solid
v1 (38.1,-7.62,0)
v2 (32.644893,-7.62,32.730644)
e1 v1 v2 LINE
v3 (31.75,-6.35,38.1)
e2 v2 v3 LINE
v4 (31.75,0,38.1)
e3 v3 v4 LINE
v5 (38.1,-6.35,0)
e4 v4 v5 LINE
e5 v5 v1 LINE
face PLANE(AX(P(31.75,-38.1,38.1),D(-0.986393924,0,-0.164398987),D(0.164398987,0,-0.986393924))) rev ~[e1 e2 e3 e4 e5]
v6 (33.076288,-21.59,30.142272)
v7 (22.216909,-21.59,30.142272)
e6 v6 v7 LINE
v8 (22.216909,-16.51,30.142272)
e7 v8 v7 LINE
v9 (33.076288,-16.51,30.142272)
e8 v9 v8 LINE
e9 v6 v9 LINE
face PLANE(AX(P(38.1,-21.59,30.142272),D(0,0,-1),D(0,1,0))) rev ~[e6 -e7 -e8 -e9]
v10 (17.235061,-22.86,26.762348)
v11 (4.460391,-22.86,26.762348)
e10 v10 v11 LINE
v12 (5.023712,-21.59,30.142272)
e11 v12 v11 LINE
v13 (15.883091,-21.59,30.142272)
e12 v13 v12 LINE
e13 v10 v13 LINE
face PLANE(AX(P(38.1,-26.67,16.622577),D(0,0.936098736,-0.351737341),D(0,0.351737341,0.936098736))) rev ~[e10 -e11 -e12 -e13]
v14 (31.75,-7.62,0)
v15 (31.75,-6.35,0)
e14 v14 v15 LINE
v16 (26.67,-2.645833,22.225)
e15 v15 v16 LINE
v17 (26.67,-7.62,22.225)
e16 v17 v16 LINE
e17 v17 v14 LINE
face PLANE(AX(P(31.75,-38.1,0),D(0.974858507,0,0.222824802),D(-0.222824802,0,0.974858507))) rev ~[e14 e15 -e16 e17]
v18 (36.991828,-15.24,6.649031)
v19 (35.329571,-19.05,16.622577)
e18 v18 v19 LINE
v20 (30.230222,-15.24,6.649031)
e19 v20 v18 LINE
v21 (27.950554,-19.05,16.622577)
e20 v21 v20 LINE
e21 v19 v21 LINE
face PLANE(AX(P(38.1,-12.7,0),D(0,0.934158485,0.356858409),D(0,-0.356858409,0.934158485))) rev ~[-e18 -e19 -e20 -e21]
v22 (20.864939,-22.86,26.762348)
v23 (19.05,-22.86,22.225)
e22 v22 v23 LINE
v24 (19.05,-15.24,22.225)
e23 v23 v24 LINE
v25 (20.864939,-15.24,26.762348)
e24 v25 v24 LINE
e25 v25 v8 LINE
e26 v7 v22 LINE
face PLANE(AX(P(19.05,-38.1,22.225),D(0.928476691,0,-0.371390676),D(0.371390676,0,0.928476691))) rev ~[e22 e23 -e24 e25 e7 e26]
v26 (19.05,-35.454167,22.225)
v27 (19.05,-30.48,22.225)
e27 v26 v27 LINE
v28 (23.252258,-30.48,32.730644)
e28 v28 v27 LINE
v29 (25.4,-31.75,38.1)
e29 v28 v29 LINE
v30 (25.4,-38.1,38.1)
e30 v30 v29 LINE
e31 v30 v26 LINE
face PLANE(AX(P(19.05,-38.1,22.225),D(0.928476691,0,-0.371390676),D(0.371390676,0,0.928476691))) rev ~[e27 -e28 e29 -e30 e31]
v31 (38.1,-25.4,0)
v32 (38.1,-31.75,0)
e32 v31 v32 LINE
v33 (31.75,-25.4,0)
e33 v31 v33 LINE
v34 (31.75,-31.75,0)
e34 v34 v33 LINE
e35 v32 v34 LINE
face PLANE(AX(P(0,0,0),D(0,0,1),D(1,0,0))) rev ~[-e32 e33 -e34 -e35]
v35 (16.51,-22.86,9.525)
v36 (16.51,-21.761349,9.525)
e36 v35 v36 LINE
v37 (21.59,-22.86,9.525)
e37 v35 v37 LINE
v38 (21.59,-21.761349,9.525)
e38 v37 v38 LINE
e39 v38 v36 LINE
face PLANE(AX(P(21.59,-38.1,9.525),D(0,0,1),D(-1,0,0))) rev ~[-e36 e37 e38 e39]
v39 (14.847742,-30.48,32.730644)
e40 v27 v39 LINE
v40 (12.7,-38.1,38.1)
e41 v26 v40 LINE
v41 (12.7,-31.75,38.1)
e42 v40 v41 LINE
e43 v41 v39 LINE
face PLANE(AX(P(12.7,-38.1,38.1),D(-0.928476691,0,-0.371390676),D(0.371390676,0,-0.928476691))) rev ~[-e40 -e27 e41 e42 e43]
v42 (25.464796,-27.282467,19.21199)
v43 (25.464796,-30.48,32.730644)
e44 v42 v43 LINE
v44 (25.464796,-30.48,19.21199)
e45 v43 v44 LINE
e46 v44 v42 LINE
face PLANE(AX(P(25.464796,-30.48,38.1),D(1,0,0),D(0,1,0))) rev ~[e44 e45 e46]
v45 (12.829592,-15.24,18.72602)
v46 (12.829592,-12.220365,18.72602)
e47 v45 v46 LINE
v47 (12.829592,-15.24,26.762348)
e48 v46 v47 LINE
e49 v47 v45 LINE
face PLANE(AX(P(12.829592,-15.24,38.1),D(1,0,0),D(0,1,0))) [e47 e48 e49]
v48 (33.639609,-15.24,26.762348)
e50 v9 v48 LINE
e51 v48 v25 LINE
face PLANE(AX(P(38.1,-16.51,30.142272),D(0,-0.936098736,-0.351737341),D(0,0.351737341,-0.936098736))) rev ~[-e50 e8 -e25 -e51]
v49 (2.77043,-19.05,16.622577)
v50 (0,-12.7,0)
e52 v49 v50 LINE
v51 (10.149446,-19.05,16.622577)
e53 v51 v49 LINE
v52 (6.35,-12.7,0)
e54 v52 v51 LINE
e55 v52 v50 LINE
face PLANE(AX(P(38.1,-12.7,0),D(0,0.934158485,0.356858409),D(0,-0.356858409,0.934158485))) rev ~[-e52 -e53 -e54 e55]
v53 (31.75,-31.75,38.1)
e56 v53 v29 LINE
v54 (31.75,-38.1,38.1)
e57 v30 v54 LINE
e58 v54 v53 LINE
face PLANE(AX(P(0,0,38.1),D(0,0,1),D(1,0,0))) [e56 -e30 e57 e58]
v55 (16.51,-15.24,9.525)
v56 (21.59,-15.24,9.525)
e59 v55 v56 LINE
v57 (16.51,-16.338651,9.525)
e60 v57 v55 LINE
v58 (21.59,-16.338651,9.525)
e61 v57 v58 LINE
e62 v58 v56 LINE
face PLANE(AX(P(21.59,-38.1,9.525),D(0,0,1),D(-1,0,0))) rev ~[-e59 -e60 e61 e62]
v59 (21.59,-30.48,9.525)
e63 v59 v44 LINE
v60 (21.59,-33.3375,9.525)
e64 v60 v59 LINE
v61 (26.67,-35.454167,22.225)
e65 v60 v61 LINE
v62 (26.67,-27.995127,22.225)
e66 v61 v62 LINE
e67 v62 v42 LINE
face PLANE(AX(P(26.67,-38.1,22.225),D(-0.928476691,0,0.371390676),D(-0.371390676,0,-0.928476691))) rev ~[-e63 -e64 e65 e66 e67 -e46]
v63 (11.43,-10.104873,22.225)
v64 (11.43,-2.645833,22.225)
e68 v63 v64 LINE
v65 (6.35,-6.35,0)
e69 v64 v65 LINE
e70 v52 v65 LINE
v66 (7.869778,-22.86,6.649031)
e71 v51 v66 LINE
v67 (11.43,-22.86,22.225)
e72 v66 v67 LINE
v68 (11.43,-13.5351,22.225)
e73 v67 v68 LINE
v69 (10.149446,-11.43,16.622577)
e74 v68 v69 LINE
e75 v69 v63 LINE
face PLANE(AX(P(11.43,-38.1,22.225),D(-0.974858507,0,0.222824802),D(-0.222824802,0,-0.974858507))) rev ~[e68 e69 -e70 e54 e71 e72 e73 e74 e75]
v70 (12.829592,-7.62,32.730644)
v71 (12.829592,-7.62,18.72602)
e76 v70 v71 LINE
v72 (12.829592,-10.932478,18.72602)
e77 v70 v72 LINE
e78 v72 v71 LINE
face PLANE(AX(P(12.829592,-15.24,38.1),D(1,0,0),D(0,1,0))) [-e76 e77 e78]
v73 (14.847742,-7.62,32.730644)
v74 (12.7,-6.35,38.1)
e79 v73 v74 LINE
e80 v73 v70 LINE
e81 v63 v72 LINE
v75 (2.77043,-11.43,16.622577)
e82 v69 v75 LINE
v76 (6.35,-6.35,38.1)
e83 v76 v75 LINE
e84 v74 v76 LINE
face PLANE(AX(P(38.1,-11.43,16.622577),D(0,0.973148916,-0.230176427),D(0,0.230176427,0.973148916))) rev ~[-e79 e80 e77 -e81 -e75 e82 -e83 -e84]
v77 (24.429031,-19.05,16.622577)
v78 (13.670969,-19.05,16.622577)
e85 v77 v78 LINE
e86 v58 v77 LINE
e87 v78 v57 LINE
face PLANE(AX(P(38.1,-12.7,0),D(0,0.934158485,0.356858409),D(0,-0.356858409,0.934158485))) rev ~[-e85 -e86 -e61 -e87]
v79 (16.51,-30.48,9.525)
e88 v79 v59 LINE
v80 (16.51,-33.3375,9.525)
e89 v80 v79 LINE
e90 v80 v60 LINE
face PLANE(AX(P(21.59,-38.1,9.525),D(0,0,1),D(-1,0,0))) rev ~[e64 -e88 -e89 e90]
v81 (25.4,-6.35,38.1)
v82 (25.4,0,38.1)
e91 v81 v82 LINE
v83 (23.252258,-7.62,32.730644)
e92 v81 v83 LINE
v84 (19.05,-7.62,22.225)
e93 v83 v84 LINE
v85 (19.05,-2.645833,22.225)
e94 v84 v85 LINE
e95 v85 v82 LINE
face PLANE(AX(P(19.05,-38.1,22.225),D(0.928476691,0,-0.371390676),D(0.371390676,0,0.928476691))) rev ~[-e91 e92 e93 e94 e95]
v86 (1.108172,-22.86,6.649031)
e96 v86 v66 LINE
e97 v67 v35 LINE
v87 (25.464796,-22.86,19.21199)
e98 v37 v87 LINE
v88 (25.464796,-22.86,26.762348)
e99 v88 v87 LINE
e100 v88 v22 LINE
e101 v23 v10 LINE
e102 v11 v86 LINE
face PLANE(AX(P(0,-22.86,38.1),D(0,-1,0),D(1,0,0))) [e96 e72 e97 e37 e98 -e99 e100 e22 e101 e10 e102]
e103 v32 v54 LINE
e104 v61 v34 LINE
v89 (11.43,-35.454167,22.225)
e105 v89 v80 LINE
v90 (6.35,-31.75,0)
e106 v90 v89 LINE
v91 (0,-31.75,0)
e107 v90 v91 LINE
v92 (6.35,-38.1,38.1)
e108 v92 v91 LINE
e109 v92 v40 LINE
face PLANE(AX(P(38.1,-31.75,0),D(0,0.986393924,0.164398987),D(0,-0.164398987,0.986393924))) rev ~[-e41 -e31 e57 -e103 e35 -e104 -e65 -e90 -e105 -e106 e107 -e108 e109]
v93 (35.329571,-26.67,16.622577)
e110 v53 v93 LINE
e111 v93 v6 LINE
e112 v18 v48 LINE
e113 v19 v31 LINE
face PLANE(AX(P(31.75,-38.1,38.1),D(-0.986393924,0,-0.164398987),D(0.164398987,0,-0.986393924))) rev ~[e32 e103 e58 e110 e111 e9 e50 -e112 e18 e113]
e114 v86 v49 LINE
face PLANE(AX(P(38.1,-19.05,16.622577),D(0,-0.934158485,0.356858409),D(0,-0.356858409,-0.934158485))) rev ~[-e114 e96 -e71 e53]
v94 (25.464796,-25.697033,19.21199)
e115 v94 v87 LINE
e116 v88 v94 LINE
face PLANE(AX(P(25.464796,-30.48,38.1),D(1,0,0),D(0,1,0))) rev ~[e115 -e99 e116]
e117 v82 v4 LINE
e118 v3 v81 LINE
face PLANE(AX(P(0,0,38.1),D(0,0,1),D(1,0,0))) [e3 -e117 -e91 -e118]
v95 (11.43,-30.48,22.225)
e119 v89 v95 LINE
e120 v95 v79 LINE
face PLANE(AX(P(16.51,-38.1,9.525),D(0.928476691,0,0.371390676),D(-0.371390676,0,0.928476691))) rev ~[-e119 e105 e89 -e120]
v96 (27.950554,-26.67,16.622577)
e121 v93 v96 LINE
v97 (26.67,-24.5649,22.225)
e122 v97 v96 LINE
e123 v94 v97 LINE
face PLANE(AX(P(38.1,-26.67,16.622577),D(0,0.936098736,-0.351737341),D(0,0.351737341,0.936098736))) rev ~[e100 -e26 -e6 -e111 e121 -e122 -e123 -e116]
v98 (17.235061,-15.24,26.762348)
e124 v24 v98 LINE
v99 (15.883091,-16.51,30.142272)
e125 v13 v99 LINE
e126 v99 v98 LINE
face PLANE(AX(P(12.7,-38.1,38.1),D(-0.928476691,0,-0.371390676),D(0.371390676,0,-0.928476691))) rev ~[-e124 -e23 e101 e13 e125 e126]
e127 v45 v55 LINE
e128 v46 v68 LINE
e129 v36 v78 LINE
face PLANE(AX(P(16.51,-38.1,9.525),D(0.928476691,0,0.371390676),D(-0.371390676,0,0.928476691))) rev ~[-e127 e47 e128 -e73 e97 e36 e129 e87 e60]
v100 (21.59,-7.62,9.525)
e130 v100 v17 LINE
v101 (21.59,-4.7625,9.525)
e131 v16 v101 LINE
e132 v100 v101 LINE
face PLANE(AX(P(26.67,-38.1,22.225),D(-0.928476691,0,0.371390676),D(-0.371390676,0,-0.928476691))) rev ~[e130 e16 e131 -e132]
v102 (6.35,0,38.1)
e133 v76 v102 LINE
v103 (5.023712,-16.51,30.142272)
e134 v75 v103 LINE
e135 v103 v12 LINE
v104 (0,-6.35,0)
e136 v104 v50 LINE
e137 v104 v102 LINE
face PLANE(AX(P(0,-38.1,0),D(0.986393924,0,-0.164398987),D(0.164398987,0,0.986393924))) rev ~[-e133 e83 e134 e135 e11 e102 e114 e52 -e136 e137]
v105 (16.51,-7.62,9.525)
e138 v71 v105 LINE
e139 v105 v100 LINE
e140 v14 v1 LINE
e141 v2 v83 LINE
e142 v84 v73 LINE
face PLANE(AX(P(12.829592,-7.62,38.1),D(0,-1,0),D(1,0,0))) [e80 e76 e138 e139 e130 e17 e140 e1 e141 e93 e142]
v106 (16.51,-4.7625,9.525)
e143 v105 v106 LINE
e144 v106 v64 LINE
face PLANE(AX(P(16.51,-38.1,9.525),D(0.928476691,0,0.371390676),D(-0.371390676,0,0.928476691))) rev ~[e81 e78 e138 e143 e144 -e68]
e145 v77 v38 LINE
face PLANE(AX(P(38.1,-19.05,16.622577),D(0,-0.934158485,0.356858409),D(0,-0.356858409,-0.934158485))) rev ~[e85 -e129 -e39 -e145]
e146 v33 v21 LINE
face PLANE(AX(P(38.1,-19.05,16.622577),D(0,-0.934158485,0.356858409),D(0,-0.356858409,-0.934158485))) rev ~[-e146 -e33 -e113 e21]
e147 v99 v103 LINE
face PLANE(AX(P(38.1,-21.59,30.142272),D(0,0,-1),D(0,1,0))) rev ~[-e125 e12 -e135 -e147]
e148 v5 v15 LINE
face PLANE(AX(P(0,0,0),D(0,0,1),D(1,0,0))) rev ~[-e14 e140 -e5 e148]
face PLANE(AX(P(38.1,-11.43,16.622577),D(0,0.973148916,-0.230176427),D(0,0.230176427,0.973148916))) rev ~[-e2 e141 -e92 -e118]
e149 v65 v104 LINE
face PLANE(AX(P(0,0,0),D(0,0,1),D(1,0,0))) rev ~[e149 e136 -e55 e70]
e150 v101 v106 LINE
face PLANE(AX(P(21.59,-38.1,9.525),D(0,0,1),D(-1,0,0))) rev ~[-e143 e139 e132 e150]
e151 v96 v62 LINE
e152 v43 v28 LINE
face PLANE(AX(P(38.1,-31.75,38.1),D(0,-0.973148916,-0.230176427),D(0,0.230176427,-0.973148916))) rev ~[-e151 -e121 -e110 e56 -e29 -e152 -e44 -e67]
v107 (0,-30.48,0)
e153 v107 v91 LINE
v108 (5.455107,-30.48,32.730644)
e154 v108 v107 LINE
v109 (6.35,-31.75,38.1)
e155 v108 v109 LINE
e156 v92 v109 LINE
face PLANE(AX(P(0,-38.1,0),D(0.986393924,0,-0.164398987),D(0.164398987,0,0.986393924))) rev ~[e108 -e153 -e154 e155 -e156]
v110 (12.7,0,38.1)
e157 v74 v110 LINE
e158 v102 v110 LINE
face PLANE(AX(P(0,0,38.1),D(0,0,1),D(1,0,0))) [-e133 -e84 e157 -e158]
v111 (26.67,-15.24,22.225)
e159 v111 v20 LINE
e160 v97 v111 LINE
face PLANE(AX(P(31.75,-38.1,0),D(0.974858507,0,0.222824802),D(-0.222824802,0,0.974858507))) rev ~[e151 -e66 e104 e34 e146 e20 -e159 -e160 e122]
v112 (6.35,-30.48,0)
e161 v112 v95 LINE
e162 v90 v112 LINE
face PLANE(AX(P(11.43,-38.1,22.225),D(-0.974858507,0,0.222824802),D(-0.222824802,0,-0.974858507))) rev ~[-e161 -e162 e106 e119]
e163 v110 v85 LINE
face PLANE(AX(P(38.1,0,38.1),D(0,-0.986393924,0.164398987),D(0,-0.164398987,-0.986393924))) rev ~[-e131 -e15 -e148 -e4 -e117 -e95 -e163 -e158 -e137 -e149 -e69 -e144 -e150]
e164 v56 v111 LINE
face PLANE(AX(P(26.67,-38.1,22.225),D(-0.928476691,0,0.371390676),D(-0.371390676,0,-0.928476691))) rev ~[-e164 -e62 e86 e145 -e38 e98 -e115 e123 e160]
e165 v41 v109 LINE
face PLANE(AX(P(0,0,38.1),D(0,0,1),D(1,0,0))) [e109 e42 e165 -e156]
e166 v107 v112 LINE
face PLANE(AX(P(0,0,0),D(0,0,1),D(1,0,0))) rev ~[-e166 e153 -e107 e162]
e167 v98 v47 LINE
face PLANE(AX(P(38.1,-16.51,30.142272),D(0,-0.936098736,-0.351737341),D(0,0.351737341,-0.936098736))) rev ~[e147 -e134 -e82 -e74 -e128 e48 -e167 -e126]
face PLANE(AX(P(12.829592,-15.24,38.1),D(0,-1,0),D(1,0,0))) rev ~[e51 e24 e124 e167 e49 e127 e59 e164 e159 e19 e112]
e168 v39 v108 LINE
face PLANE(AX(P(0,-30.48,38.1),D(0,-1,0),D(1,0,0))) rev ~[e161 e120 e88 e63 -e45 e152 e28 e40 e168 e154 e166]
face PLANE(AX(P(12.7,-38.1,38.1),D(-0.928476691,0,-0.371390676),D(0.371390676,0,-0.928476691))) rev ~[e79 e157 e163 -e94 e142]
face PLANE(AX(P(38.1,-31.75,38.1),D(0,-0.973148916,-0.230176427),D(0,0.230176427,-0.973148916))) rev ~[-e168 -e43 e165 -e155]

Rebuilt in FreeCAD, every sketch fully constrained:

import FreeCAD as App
import Part
import Sketcher

V = App.Vector
Q = App.Units.Quantity


def add_polygon(sketch, points):
    """Adds a closed chain of lines whose ends are joined by coincident constraints."""
    first, n = sketch.GeometryCount, len(points)
    for a, b in zip(points, points[1:] + points[:1]):
        sketch.addGeometry(Part.LineSegment(App.Vector(*a, 0), App.Vector(*b, 0)), False)
    for i in range(n):
        sketch.addConstraint(Sketcher.Constraint("Coincident", first + i, 2, first + (i + 1) % n, 1))

doc = App.newDocument("Part")
params = doc.addObject("Spreadsheet::Sheet", "Params")
for row, (alias, value) in enumerate([
    ("sketch1_width", "1.5 in"),
    ("pad1_length", "1.5 in"),
    ("sketch2_width", "1 in"),
    ("sketch2_width2", "0.5 in"),
    ("sketch2_width3", "0.2 in"),
    ("sketch2_height", "1.5 in"),
    ("pocket1_length", "1.5 in"),
    ("sketch3_width", "1 in"),
    ("sketch3_width2", "0.5 in"),
    ("sketch3_width3", "0.2 in"),
    ("sketch3_height", "1.5 in"),
    ("pocket2_length", "1.5 in"),
    ("sketch4_height", "0.3 in"),
    ("pocket3_length", "1.5 in"),
], start=1):
    params.set(f"A{row}", alias)
    params.set(f"B{row}", "=" + value)
    params.setAlias(f"B{row}", alias)

body = doc.addObject("PartDesign::Body", "Body")

# Sketch on XZ plane
sketch1 = body.newObject("Sketcher::SketchObject", "Sketch")
sketch1.AttachmentSupport = (doc.getObject("XZ_Plane"), [""])
sketch1.MapMode = "FlatFace"
add_polygon(sketch1, [(0, 38), (0, 0), (38, 0), (38, 38)])  # lines 0-3
sketch1.addConstraint([
    Sketcher.Constraint("Vertical", 0),
    Sketcher.Constraint("Horizontal", 1),
    Sketcher.Constraint("Vertical", 2),
    Sketcher.Constraint("Horizontal", 3),
    Sketcher.Constraint("Coincident", 0, 2, -1, 1),
    Sketcher.Constraint("Equal", 3, 0),
    Sketcher.Constraint("DistanceX", 1, 1, 1, 2, Q("1.5 in")),
])
sketch1.setExpression("Constraints[10]", "Params.sketch1_width")
pad1 = body.newObject("PartDesign::Pad", "Pad")
pad1.Profile = sketch1
pad1.setExpression("Length", "Params.pad1_length")

# Sketch on YZ plane
sketch2 = body.newObject("Sketcher::SketchObject", "Sketch001")
sketch2.AttachmentSupport = (doc.getObject("YZ_Plane"), [""])
sketch2.MapMode = "FlatFace"
sketch2.AttachmentOffset = App.Placement(V(0, 0, 1.5 * 25.4), App.Rotation())
add_polygon(sketch2, [(-32, 0), (-38, 38), (-38, 0)])  # lines 0-2
add_polygon(sketch2, [(-25, 0), (-13, 0), (-19, 17)])  # lines 3-5
add_polygon(sketch2, [(-11, 17), (-6, 38), (-32, 38), (-27, 17), (-22, 30), (-17, 30)])  # lines 6-11
add_polygon(sketch2, [(-6, 0), (0, 0), (0, 38)])  # lines 12-14
sketch2.addConstraint([
    Sketcher.Constraint("Vertical", 1),
    Sketcher.Constraint("Horizontal", 2),
    Sketcher.Constraint("Horizontal", 3),
    Sketcher.Constraint("Horizontal", 7),
    Sketcher.Constraint("Horizontal", 10),
    Sketcher.Constraint("Horizontal", 12),
    Sketcher.Constraint("Vertical", 13),
    Sketcher.Constraint("Coincident", 12, 2, -1, 1),
    Sketcher.Constraint("PointOnObject", 1, 2, -1),
    Sketcher.Constraint("PointOnObject", 3, 2, -1),
    Sketcher.Constraint("Horizontal", 0, 2, 6, 2),
    Sketcher.Constraint("Horizontal", 4, 2, 8, 2),
    Sketcher.Constraint("Horizontal", 8, 2, 11, 2),
    Sketcher.Constraint("Horizontal", 7, 2, 13, 2),
    Sketcher.Constraint("Vertical", 2, 2, 7, 2),
    Sketcher.Constraint("Vertical", 6, 2, 14, 2),
    Sketcher.Constraint("Equal", 2, 12),
    Sketcher.Constraint("Equal", 4, 5),
    Sketcher.Constraint("Equal", 6, 8),
    Sketcher.Constraint("Equal", 9, 11),
    Sketcher.Constraint("DistanceX", 7, 2, 7, 1, Q("1 in")),
    Sketcher.Constraint("DistanceX", 3, 1, 3, 2, Q("0.5 in")),
    Sketcher.Constraint("DistanceX", 10, 1, 10, 2, Q("0.2 in")),
    Sketcher.Constraint("DistanceY", 1, 2, 1, 1, Q("1.5 in")),
    Sketcher.Constraint("DistanceX", 5, 2, -1, 1, Q("1 in")),
    Sketcher.Constraint("DistanceX", 1, 2, 3, 2, Q("1 in")),
    Sketcher.Constraint("DistanceX", 8, 2, 4, 2, Q("0.3 in")),
    Sketcher.Constraint("DistanceY", -1, 1, 9, 2, 30.142272),
    Sketcher.Constraint("Distance", 4, 17.794172),
])
sketch2.setExpression("Constraints[35]", "Params.sketch2_width")
sketch2.setExpression("Constraints[36]", "Params.sketch2_width2")
sketch2.setExpression("Constraints[37]", "Params.sketch2_width3")
sketch2.setExpression("Constraints[38]", "Params.sketch2_height")
pocket1 = body.newObject("PartDesign::Pocket", "Pocket")
pocket1.Profile = sketch2
pocket1.setExpression("Length", "Params.pocket1_length")

# Sketch on XZ plane
sketch3 = body.newObject("Sketcher::SketchObject", "Sketch002")
sketch3.AttachmentSupport = (doc.getObject("XZ_Plane"), [""])
sketch3.MapMode = "FlatFace"
sketch3.AttachmentOffset = App.Placement(V(0, 0, 1.5 * 25.4), App.Rotation())
add_polygon(sketch3, [(0, 38), (0, 0), (6, 38)])  # lines 0-2
add_polygon(sketch3, [(25, 38), (13, 38), (19, 22)])  # lines 3-5
add_polygon(sketch3, [(11, 22), (6, 0), (32, 0), (27, 22), (22, 10), (17, 10)])  # lines 6-11
add_polygon(sketch3, [(32, 38), (38, 0), (38, 38)])  # lines 12-14
sketch3.addConstraint([
    Sketcher.Constraint("Vertical", 0),
    Sketcher.Constraint("Horizontal", 2),
    Sketcher.Constraint("Horizontal", 3),
    Sketcher.Constraint("Horizontal", 7),
    Sketcher.Constraint("Horizontal", 10),
    Sketcher.Constraint("Vertical", 13),
    Sketcher.Constraint("Horizontal", 14),
    Sketcher.Constraint("Coincident", 0, 2, -1, 1),
    Sketcher.Constraint("PointOnObject", 6, 2, -1),
    Sketcher.Constraint("PointOnObject", 12, 2, -1),
    Sketcher.Constraint("Parallel", 5, 9),
    Sketcher.Constraint("Parallel", 4, 11),
    Sketcher.Constraint("Horizontal", 2, 2, 3, 2),
    Sketcher.Constraint("Horizontal", 4, 2, 8, 2),
    Sketcher.Constraint("Horizontal", 8, 2, 11, 2),
    Sketcher.Constraint("Horizontal", 5, 2, 13, 2),
    Sketcher.Constraint("Vertical", 1, 2, 6, 2),
    Sketcher.Constraint("Vertical", 7, 2, 14, 2),
    Sketcher.Constraint("Equal", 2, 14),
    Sketcher.Constraint("Equal", 4, 5),
    Sketcher.Constraint("Equal", 6, 8),
    Sketcher.Constraint("DistanceX", 7, 1, 7, 2, Q("1 in")),
    Sketcher.Constraint("DistanceX", 3, 2, 3, 1, Q("0.5 in")),
    Sketcher.Constraint("DistanceX", 10, 2, 10, 1, Q("0.2 in")),
    Sketcher.Constraint("DistanceY", 0, 2, 0, 1, Q("1.5 in")),
    Sketcher.Constraint("DistanceX", -1, 1, 5, 2, Q("1 in")),
    Sketcher.Constraint("DistanceX", 3, 2, 13, 2, Q("1 in")),
    Sketcher.Constraint("DistanceX", 4, 2, 8, 2, Q("0.3 in")),
    Sketcher.Constraint("DistanceY", 9, 2, 4, 2, Q("0.5 in")),
])
sketch3.setExpression("Constraints[36]", "Params.sketch3_width")
sketch3.setExpression("Constraints[37]", "Params.sketch3_width2")
sketch3.setExpression("Constraints[38]", "Params.sketch3_width3")
sketch3.setExpression("Constraints[39]", "Params.sketch3_height")
pocket2 = body.newObject("PartDesign::Pocket", "Pocket001")
pocket2.Profile = sketch3
pocket2.setExpression("Length", "Params.pocket2_length")

# Sketch on XY plane
sketch4 = body.newObject("Sketcher::SketchObject", "Sketch003")
sketch4.AttachmentSupport = (doc.getObject("XY_Plane"), [""])
sketch4.MapMode = "FlatFace"
sketch4.AttachmentOffset = App.Placement(V(0, 0, 1.5 * 25.4), App.Rotation())
add_polygon(sketch4, [(13, -8), (13, -15), (38, -15), (38, -8)])  # lines 0-3
add_polygon(sketch4, [(0, -23), (0, -30), (25, -30), (25, -23)])  # lines 4-7
sketch4.addConstraint([
    Sketcher.Constraint("Vertical", 0),
    Sketcher.Constraint("Horizontal", 1),
    Sketcher.Constraint("Vertical", 2),
    Sketcher.Constraint("Horizontal", 3),
    Sketcher.Constraint("Vertical", 4),
    Sketcher.Constraint("Horizontal", 5),
    Sketcher.Constraint("Vertical", 6),
    Sketcher.Constraint("Horizontal", 7),
    Sketcher.Constraint("PointOnObject", 4, 2, -2),
    Sketcher.Constraint("Equal", 2, 4),
    Sketcher.Constraint("DistanceY", 0, 2, 0, 1, Q("0.3 in")),
    Sketcher.Constraint("DistanceY", 0, 2, -1, 1, Q("0.6 in")),
    Sketcher.Constraint("DistanceX", -1, 1, 1, 2, Q("1.5 in")),
    Sketcher.Constraint("DistanceY", 4, 2, -1, 1, Q("1.2 in")),
    Sketcher.Constraint("DistanceX", 1, 1, 1, 2, 25.270408),
    Sketcher.Constraint("DistanceX", 5, 1, 5, 2, 25.464796),
])
sketch4.setExpression("Constraints[18]", "Params.sketch4_height")
pocket3 = body.newObject("PartDesign::Pocket", "Pocket002")
pocket3.Profile = sketch4
pocket3.setExpression("Length", "Params.pocket3_length")

doc.recompute()
